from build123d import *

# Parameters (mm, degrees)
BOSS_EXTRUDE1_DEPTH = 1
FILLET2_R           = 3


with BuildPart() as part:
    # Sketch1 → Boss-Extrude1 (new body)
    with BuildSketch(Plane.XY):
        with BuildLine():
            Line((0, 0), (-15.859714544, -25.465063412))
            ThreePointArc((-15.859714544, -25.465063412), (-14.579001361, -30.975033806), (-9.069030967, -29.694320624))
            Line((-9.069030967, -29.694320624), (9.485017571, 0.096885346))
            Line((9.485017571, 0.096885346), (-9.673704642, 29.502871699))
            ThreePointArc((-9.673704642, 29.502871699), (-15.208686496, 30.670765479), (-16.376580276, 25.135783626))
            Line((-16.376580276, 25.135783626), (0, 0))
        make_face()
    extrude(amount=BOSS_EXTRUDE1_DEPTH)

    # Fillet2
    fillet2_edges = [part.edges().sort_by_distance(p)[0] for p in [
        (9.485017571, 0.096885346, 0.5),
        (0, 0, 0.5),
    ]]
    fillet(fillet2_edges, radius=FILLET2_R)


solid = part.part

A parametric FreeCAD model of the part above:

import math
import FreeCAD as App
import Part
import Sketcher
from FreeCAD import Vector
Q = App.Units.Quantity


def edges_at(feature, points):
    """Names of the edges that pass closest to the given points."""
    edges = feature.Shape.Edges
    near = lambda p: min(range(len(edges)), key=lambda i: edges[i].distToShape(Part.Vertex(*p))[0])
    return sorted({f"Edge{near(p) + 1}" for p in points})

doc = App.newDocument("Part")
body = doc.addObject("PartDesign::Body", "Body")

sketch1 = body.newObject("Sketcher::SketchObject", "Sketch")
sketch1.AttachmentSupport = (doc.getObject("XY_Plane"), [""])
sketch1.MapMode = "FlatFace"
sketch1.addGeometry(Part.LineSegment(Vector(0, 0, 0), Vector(-15.859715, -25.465063, 0)), False)
sketch1.addGeometry(Part.ArcOfCircle(Part.Circle(Vector(-12.464373, -27.579692, 0), Vector(0, 0, 1), 4), math.radians(148.085231), math.radians(328.085231)), False)
sketch1.addGeometry(Part.LineSegment(Vector(-9.069031, -29.694321, 0), Vector(9.485018, 0.096885, 0)), False)
sketch1.addGeometry(Part.LineSegment(Vector(9.485018, 0.096885, 0), Vector(-9.673705, 29.502872, 0)), False)
sketch1.addGeometry(Part.ArcOfCircle(Part.Circle(Vector(-13.025142, 27.319328, 0), Vector(0, 0, 1), 4), math.radians(33.085231), math.radians(213.085231)), False)
sketch1.addGeometry(Part.LineSegment(Vector(-16.37658, 25.135784, 0), Vector(0, 0, 0)), False)
sketch1.addConstraint(Sketcher.Constraint("Tangent", 0, 2, 1, 1))
sketch1.addConstraint(Sketcher.Constraint("Tangent", 1, 2, 2, 1))
sketch1.addConstraint(Sketcher.Constraint("Coincident", 2, 2, 3, 1))
sketch1.addConstraint(Sketcher.Constraint("Tangent", 3, 2, 4, 1))
sketch1.addConstraint(Sketcher.Constraint("Tangent", 4, 2, 5, 1))
sketch1.addConstraint(Sketcher.Constraint("Coincident", 5, 2, 0, 1))
sketch1.addConstraint(Sketcher.Constraint("Coincident", 5, 2, -1, 1))
sketch1.addConstraint(Sketcher.Constraint("Equal", 1, 4))
sketch1.addConstraint(Sketcher.Constraint("Parallel", 0, 2))
sketch1.addConstraint(Sketcher.Constraint("Parallel", 3, 5))
sketch1.addConstraint(Sketcher.Constraint("Equal", 2, 3))
sketch1.addConstraint(Sketcher.Constraint("Radius", 1, Q("4 mm")))
sketch1.addConstraint(Sketcher.Constraint("Distance", 0, Q("30 mm")))
sketch1.addConstraint(Sketcher.Constraint("DistanceY", 2, 2, 4, 2, Q("25.038898 mm")))
sketch1.addConstraint(Sketcher.Constraint("DistanceX", 1, 2, -1, 1, Q("9.069031 mm")))
pad1 = body.newObject("PartDesign::Pad", "Pad")
pad1.Profile = sketch1
pad1.Length = 1
doc.recompute()

fillet = body.newObject("PartDesign::Fillet", "Fillet")
fillet.Base = (pad1, edges_at(pad1, [(9.485, 0.097, 0.5), (0, 0, 0.5)]))
fillet.Radius = 3

doc.recompute()
